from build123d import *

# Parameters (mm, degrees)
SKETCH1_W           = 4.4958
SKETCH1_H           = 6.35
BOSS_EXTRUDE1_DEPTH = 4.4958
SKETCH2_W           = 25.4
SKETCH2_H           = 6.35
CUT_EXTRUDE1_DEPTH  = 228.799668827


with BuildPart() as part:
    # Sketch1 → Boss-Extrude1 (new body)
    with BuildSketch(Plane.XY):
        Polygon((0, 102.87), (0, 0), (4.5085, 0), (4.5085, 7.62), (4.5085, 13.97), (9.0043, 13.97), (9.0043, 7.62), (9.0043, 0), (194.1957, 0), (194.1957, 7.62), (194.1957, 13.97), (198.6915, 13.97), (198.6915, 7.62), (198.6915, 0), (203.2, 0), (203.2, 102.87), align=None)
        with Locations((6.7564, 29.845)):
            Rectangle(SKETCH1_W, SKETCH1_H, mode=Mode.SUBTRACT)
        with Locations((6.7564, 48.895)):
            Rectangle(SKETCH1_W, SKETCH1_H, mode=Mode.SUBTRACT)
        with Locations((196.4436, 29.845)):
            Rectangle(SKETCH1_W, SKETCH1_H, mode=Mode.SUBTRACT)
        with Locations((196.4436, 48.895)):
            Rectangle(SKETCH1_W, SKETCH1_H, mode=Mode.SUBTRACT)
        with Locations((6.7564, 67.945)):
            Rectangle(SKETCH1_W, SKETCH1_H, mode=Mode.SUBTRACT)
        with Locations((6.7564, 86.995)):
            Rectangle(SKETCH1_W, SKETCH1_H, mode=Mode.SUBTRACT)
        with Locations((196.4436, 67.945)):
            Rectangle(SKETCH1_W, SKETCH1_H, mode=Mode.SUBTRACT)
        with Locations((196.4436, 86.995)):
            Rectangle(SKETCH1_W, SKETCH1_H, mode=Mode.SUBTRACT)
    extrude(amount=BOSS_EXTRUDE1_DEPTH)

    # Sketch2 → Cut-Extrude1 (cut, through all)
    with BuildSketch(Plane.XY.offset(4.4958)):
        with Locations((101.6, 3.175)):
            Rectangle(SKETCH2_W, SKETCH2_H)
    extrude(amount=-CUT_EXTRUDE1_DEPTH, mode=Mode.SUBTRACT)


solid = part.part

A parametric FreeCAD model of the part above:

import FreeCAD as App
import Part
import Sketcher
from FreeCAD import Vector
Q = App.Units.Quantity


def add_polygon(sketch, points):
    """Adds a closed chain of lines whose ends are joined by coincident constraints."""
    first, n = sketch.GeometryCount, len(points)
    for a, b in zip(points, points[1:] + points[:1]):
        sketch.addGeometry(Part.LineSegment(App.Vector(*a, 0), App.Vector(*b, 0)), False)
    for i in range(n):
        sketch.addConstraint(Sketcher.Constraint("Coincident", first + i, 2, first + (i + 1) % n, 1))

doc = App.newDocument("Part")
params = doc.addObject("Spreadsheet::Sheet", "Params")
for row, (alias, value) in enumerate([
    ("sketch1_width", "8 in"),
    ("sketch1_height", "4.05 in"),
    ("sketch1_height2", "0.55 in"),
    ("sketch1_height3", "0.25 in"),
    ("sketch1_width2", "0.177 in"),
    ("pad1_length", "0.177 in"),
    ("sketch2_width", "1 in"),
    ("sketch2_height", "0.25 in"),
], start=1):
    params.set(f"A{row}", alias)
    params.set(f"B{row}", "=" + value)
    params.setAlias(f"B{row}", alias)

body = doc.addObject("PartDesign::Body", "Body")

# Sketch on XY plane
sketch1 = body.newObject("Sketcher::SketchObject", "Sketch")
sketch1.AttachmentSupport = (doc.getObject("XY_Plane"), [""])
sketch1.MapMode = "FlatFace"
add_polygon(sketch1, [(0, 102.9), (0, 0), (4.5, 0), (4.5, 14), (9, 14), (9, 0), (194.2, 0), (194.2, 14), (198.7, 14), (198.7, 0), (203.2, 0), (203.2, 102.9)])  # lines 0-11
add_polygon(sketch1, [(9, 26.7), (4.5, 26.7), (4.5, 33), (9, 33)])  # lines 12-15
add_polygon(sketch1, [(9, 45.7), (4.5, 45.7), (4.5, 52.1), (9, 52.1)])  # lines 16-19
add_polygon(sketch1, [(198.7, 26.7), (194.2, 26.7), (194.2, 33), (198.7, 33)])  # lines 20-23
add_polygon(sketch1, [(198.7, 45.7), (194.2, 45.7), (194.2, 52.1), (198.7, 52.1)])  # lines 24-27
add_polygon(sketch1, [(9, 64.8), (4.5, 64.8), (4.5, 71.1), (9, 71.1)])  # lines 28-31
add_polygon(sketch1, [(9, 83.8), (4.5, 83.8), (4.5, 90.2), (9, 90.2)])  # lines 32-35
add_polygon(sketch1, [(198.7, 64.8), (194.2, 64.8), (194.2, 71.1), (198.7, 71.1)])  # lines 36-39
add_polygon(sketch1, [(198.7, 83.8), (194.2, 83.8), (194.2, 90.2), (198.7, 90.2)])  # lines 40-43
sketch1.addConstraint([
    Sketcher.Constraint("Vertical", 0),
    Sketcher.Constraint("Horizontal", 1),
    Sketcher.Constraint("Vertical", 2),
    Sketcher.Constraint("Horizontal", 3),
    Sketcher.Constraint("Vertical", 4),
    Sketcher.Constraint("Horizontal", 5),
    Sketcher.Constraint("Vertical", 6),
    Sketcher.Constraint("Horizontal", 7),
    Sketcher.Constraint("Vertical", 8),
    Sketcher.Constraint("Horizontal", 9),
    Sketcher.Constraint("Vertical", 10),
    Sketcher.Constraint("Horizontal", 11),
    Sketcher.Constraint("Horizontal", 12),
    Sketcher.Constraint("Vertical", 13),
    Sketcher.Constraint("Horizontal", 14),
    Sketcher.Constraint("Vertical", 15),
    Sketcher.Constraint("Horizontal", 16),
    Sketcher.Constraint("Vertical", 17),
    Sketcher.Constraint("Horizontal", 18),
    Sketcher.Constraint("Vertical", 19),
    Sketcher.Constraint("Horizontal", 20),
    Sketcher.Constraint("Vertical", 21),
    Sketcher.Constraint("Horizontal", 22),
    Sketcher.Constraint("Vertical", 23),
    Sketcher.Constraint("Horizontal", 24),
    Sketcher.Constraint("Vertical", 25),
    Sketcher.Constraint("Horizontal", 26),
    Sketcher.Constraint("Vertical", 27),
    Sketcher.Constraint("Horizontal", 28),
    Sketcher.Constraint("Vertical", 29),
    Sketcher.Constraint("Horizontal", 30),
    Sketcher.Constraint("Vertical", 31),
    Sketcher.Constraint("Horizontal", 32),
    Sketcher.Constraint("Vertical", 33),
    Sketcher.Constraint("Horizontal", 34),
    Sketcher.Constraint("Vertical", 35),
    Sketcher.Constraint("Horizontal", 36),
    Sketcher.Constraint("Vertical", 37),
    Sketcher.Constraint("Horizontal", 38),
    Sketcher.Constraint("Vertical", 39),
    Sketcher.Constraint("Horizontal", 40),
    Sketcher.Constraint("Vertical", 41),
    Sketcher.Constraint("Horizontal", 42),
    Sketcher.Constraint("Vertical", 43),
    Sketcher.Constraint("Coincident", 0, 2, -1, 1),
    Sketcher.Constraint("PointOnObject", 4, 2, -1),
    Sketcher.Constraint("PointOnObject", 8, 2, -1),
    Sketcher.Constraint("Horizontal", 3, 2, 6, 2),
    Sketcher.Constraint("Horizontal", 15, 2, 20, 2),
    Sketcher.Constraint("Horizontal", 14, 2, 21, 2),
    Sketcher.Constraint("Horizontal", 19, 2, 24, 2),
    Sketcher.Constraint("Horizontal", 18, 2, 25, 2),
    Sketcher.Constraint("Horizontal", 31, 2, 36, 2),
    Sketcher.Constraint("Horizontal", 30, 2, 37, 2),
    Sketcher.Constraint("Horizontal", 35, 2, 40, 2),
    Sketcher.Constraint("Horizontal", 34, 2, 41, 2),
    Sketcher.Constraint("Vertical", 2, 2, 12, 2),
    Sketcher.Constraint("Vertical", 4, 2, 14, 2),
    Sketcher.Constraint("Vertical", 13, 2, 16, 2),
    Sketcher.Constraint("Vertical", 15, 2, 18, 2),
    Sketcher.Constraint("Vertical", 6, 2, 20, 2),
    Sketcher.Constraint("Vertical", 8, 2, 22, 2),
    Sketcher.Constraint("Vertical", 21, 2, 24, 2),
    Sketcher.Constraint("Vertical", 23, 2, 26, 2),
    Sketcher.Constraint("Vertical", 17, 2, 28, 2),
    Sketcher.Constraint("Vertical", 19, 2, 30, 2),
    Sketcher.Constraint("Vertical", 29, 2, 32, 2),
    Sketcher.Constraint("Vertical", 31, 2, 34, 2),
    Sketcher.Constraint("Vertical", 25, 2, 36, 2),
    Sketcher.Constraint("Vertical", 27, 2, 38, 2),
    Sketcher.Constraint("Vertical", 37, 2, 40, 2),
    Sketcher.Constraint("Vertical", 39, 2, 42, 2),
    Sketcher.Constraint("Equal", 3, 7),
    Sketcher.Constraint("Equal", 1, 9),
    Sketcher.Constraint("Equal", 15, 17),
    Sketcher.Constraint("Equal", 27, 29),
    Sketcher.Constraint("Equal", 31, 33),
    Sketcher.Constraint("DistanceX", 11, 2, 11, 1, Q("8 in")),
    Sketcher.Constraint("DistanceY", 12, 2, 17, 2, Q("1 in")),
    Sketcher.Constraint("DistanceY", 16, 2, 29, 2, Q("1 in")),
    Sketcher.Constraint("DistanceY", 28, 2, 33, 2, Q("1 in")),
    Sketcher.Constraint("DistanceY", 0, 2, 0, 1, Q("4.05 in")),
    Sketcher.Constraint("DistanceY", 2, 1, 2, 2, Q("0.55 in")),
    Sketcher.Constraint("DistanceY", 13, 1, 13, 2, Q("0.25 in")),
    Sketcher.Constraint("DistanceY", -1, 1, 13, 2, Q("1.3 in")),
    Sketcher.Constraint("DistanceX", 3, 1, 3, 2, Q("0.177 in")),
    Sketcher.Constraint("DistanceX", 5, 1, 5, 2, Q("7.291 in")),
])
sketch1.setExpression("Constraints[121]", "Params.sketch1_width")
sketch1.setExpression("Constraints[125]", "Params.sketch1_height")
sketch1.setExpression("Constraints[126]", "Params.sketch1_height2")
sketch1.setExpression("Constraints[127]", "Params.sketch1_height3")
sketch1.setExpression("Constraints[129]", "Params.sketch1_width2")
pad1 = body.newObject("PartDesign::Pad", "Pad")
pad1.Profile = sketch1
pad1.setExpression("Length", "Params.pad1_length")

# Sketch on XY plane
sketch2 = body.newObject("Sketcher::SketchObject", "Sketch001")
sketch2.AttachmentSupport = (doc.getObject("XY_Plane"), [""])
sketch2.MapMode = "FlatFace"
sketch2.AttachmentOffset = App.Placement(Vector(0, 0, 0.177 * 25.4), App.Rotation())
add_polygon(sketch2, [(89, 6), (89, 0), (114, 0), (114, 6)])  # lines 0-3
sketch2.addConstraint([
    Sketcher.Constraint("Vertical", 0),
    Sketcher.Constraint("Horizontal", 1),
    Sketcher.Constraint("Vertical", 2),
    Sketcher.Constraint("Horizontal", 3),
    Sketcher.Constraint("PointOnObject", 0, 2, -1),
    Sketcher.Constraint("DistanceX", 1, 1, 1, 2, Q("1 in")),
    Sketcher.Constraint("DistanceY", 0, 2, 0, 1, Q("0.25 in")),
    Sketcher.Constraint("DistanceX", -1, 1, 0, 2, Q("3.5 in")),
])
sketch2.setExpression("Constraints[9]", "Params.sketch2_width")
sketch2.setExpression("Constraints[10]", "Params.sketch2_height")
pocket1 = body.newObject("PartDesign::Pocket", "Pocket")
pocket1.Profile = sketch2
pocket1.Type = "ThroughAll"

doc.recompute()
